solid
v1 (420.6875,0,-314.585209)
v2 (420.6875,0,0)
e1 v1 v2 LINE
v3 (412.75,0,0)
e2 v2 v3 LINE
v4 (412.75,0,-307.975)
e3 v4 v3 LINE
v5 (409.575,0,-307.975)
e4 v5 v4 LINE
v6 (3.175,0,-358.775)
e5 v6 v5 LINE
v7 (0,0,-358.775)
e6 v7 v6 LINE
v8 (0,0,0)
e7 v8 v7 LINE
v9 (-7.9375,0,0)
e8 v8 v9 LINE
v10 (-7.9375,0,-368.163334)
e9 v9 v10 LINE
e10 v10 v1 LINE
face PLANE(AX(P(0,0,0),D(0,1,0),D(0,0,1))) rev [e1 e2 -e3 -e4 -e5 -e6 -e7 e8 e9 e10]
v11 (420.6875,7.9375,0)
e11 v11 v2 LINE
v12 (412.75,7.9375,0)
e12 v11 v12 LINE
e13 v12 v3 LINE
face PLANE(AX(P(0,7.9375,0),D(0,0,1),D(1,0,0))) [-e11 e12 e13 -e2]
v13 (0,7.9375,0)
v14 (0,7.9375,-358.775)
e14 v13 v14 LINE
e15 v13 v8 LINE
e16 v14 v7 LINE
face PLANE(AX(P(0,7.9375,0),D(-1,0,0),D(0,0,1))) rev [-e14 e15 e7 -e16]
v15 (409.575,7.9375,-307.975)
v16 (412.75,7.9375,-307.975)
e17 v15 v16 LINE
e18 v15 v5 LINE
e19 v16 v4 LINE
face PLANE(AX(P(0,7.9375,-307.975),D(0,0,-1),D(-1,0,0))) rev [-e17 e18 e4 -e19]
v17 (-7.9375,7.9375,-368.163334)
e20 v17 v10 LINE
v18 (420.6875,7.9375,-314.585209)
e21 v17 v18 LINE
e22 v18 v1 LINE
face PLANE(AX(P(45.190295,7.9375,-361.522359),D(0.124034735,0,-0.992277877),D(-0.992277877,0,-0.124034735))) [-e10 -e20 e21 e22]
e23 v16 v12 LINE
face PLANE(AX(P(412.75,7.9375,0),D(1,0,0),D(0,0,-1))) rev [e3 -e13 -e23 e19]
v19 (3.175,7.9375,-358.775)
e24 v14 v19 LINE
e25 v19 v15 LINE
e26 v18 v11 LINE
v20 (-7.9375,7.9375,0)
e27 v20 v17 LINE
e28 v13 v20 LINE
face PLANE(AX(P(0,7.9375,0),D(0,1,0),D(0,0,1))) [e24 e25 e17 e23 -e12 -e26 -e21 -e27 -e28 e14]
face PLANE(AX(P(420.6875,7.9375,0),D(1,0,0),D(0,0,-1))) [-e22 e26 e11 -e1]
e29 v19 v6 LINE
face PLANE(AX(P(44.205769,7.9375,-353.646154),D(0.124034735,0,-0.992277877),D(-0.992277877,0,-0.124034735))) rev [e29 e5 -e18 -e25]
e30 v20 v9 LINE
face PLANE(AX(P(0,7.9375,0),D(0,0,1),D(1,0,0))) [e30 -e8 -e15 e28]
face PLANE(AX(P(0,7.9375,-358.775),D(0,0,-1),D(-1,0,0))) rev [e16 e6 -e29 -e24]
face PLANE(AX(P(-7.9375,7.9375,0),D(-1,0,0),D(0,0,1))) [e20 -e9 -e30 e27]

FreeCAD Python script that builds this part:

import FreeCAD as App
import Part
import Sketcher
from FreeCAD import Vector
Q = App.Units.Quantity


def add_polygon(sketch, points):
    """Adds a closed chain of lines whose ends are joined by coincident constraints."""
    first, n = sketch.GeometryCount, len(points)
    for a, b in zip(points, points[1:] + points[:1]):
        sketch.addGeometry(Part.LineSegment(App.Vector(*a, 0), App.Vector(*b, 0)), False)
    for i in range(n):
        sketch.addConstraint(Sketcher.Constraint("Coincident", first + i, 2, first + (i + 1) % n, 1))

doc = App.newDocument("Part")
body = doc.addObject("PartDesign::Body", "Body")

# Sketch on XZ plane
sketch1 = doc.addObject("Sketcher::SketchObject", "Sketch")
body.addObject(sketch1)
sketch1.AttachmentSupport = (doc.XZ_Plane, [""])
sketch1.MapMode = "FlatFace"
add_polygon(sketch1, [(412.8, 0), (420.7, 0), (420.7, -314.6), (-7.9, -368.2), (-7.9, 0), (0, 0), (0, -358.8), (3.2, -358.8), (409.6, -308), (412.8, -308)])  # lines 0-9
sketch1.addConstraint([
    Sketcher.Constraint("Horizontal", 0),
    Sketcher.Constraint("Vertical", 1),
    Sketcher.Constraint("Vertical", 3),
    Sketcher.Constraint("Horizontal", 4),
    Sketcher.Constraint("Vertical", 5),
    Sketcher.Constraint("Horizontal", 6),
    Sketcher.Constraint("Horizontal", 8),
    Sketcher.Constraint("Vertical", 9),
    Sketcher.Constraint("Coincident", 4, 2, -1, 1),
    Sketcher.Constraint("PointOnObject", 0, 2, -1),
    Sketcher.Constraint("Parallel", 2, 7),
    Sketcher.Constraint("Equal", 0, 4),
    Sketcher.Constraint("Equal", 6, 8),
    Sketcher.Constraint("DistanceX", 6, 2, 7, 2, Q("16 in")),
    Sketcher.Constraint("DistanceY", 6, 2, 7, 2, Q("2 in")),
    Sketcher.Constraint("DistanceX", 0, 1, 0, 2, Q("0.3125 in")),
    Sketcher.Constraint("DistanceX", 6, 1, 6, 2, Q("0.125 in")),
    Sketcher.Constraint("DistanceY", 5, 2, 5, 1, Q("14.125 in")),
    Sketcher.Constraint("DistanceY", 1, 2, 1, 1, 314.585209),
])
pad1 = doc.addObject("PartDesign::Pad", "Pad")
body.addObject(pad1)
pad1.Profile = sketch1
pad1.Length = Q("0.3125 in")
pad1.Reversed = True

doc.recompute()
